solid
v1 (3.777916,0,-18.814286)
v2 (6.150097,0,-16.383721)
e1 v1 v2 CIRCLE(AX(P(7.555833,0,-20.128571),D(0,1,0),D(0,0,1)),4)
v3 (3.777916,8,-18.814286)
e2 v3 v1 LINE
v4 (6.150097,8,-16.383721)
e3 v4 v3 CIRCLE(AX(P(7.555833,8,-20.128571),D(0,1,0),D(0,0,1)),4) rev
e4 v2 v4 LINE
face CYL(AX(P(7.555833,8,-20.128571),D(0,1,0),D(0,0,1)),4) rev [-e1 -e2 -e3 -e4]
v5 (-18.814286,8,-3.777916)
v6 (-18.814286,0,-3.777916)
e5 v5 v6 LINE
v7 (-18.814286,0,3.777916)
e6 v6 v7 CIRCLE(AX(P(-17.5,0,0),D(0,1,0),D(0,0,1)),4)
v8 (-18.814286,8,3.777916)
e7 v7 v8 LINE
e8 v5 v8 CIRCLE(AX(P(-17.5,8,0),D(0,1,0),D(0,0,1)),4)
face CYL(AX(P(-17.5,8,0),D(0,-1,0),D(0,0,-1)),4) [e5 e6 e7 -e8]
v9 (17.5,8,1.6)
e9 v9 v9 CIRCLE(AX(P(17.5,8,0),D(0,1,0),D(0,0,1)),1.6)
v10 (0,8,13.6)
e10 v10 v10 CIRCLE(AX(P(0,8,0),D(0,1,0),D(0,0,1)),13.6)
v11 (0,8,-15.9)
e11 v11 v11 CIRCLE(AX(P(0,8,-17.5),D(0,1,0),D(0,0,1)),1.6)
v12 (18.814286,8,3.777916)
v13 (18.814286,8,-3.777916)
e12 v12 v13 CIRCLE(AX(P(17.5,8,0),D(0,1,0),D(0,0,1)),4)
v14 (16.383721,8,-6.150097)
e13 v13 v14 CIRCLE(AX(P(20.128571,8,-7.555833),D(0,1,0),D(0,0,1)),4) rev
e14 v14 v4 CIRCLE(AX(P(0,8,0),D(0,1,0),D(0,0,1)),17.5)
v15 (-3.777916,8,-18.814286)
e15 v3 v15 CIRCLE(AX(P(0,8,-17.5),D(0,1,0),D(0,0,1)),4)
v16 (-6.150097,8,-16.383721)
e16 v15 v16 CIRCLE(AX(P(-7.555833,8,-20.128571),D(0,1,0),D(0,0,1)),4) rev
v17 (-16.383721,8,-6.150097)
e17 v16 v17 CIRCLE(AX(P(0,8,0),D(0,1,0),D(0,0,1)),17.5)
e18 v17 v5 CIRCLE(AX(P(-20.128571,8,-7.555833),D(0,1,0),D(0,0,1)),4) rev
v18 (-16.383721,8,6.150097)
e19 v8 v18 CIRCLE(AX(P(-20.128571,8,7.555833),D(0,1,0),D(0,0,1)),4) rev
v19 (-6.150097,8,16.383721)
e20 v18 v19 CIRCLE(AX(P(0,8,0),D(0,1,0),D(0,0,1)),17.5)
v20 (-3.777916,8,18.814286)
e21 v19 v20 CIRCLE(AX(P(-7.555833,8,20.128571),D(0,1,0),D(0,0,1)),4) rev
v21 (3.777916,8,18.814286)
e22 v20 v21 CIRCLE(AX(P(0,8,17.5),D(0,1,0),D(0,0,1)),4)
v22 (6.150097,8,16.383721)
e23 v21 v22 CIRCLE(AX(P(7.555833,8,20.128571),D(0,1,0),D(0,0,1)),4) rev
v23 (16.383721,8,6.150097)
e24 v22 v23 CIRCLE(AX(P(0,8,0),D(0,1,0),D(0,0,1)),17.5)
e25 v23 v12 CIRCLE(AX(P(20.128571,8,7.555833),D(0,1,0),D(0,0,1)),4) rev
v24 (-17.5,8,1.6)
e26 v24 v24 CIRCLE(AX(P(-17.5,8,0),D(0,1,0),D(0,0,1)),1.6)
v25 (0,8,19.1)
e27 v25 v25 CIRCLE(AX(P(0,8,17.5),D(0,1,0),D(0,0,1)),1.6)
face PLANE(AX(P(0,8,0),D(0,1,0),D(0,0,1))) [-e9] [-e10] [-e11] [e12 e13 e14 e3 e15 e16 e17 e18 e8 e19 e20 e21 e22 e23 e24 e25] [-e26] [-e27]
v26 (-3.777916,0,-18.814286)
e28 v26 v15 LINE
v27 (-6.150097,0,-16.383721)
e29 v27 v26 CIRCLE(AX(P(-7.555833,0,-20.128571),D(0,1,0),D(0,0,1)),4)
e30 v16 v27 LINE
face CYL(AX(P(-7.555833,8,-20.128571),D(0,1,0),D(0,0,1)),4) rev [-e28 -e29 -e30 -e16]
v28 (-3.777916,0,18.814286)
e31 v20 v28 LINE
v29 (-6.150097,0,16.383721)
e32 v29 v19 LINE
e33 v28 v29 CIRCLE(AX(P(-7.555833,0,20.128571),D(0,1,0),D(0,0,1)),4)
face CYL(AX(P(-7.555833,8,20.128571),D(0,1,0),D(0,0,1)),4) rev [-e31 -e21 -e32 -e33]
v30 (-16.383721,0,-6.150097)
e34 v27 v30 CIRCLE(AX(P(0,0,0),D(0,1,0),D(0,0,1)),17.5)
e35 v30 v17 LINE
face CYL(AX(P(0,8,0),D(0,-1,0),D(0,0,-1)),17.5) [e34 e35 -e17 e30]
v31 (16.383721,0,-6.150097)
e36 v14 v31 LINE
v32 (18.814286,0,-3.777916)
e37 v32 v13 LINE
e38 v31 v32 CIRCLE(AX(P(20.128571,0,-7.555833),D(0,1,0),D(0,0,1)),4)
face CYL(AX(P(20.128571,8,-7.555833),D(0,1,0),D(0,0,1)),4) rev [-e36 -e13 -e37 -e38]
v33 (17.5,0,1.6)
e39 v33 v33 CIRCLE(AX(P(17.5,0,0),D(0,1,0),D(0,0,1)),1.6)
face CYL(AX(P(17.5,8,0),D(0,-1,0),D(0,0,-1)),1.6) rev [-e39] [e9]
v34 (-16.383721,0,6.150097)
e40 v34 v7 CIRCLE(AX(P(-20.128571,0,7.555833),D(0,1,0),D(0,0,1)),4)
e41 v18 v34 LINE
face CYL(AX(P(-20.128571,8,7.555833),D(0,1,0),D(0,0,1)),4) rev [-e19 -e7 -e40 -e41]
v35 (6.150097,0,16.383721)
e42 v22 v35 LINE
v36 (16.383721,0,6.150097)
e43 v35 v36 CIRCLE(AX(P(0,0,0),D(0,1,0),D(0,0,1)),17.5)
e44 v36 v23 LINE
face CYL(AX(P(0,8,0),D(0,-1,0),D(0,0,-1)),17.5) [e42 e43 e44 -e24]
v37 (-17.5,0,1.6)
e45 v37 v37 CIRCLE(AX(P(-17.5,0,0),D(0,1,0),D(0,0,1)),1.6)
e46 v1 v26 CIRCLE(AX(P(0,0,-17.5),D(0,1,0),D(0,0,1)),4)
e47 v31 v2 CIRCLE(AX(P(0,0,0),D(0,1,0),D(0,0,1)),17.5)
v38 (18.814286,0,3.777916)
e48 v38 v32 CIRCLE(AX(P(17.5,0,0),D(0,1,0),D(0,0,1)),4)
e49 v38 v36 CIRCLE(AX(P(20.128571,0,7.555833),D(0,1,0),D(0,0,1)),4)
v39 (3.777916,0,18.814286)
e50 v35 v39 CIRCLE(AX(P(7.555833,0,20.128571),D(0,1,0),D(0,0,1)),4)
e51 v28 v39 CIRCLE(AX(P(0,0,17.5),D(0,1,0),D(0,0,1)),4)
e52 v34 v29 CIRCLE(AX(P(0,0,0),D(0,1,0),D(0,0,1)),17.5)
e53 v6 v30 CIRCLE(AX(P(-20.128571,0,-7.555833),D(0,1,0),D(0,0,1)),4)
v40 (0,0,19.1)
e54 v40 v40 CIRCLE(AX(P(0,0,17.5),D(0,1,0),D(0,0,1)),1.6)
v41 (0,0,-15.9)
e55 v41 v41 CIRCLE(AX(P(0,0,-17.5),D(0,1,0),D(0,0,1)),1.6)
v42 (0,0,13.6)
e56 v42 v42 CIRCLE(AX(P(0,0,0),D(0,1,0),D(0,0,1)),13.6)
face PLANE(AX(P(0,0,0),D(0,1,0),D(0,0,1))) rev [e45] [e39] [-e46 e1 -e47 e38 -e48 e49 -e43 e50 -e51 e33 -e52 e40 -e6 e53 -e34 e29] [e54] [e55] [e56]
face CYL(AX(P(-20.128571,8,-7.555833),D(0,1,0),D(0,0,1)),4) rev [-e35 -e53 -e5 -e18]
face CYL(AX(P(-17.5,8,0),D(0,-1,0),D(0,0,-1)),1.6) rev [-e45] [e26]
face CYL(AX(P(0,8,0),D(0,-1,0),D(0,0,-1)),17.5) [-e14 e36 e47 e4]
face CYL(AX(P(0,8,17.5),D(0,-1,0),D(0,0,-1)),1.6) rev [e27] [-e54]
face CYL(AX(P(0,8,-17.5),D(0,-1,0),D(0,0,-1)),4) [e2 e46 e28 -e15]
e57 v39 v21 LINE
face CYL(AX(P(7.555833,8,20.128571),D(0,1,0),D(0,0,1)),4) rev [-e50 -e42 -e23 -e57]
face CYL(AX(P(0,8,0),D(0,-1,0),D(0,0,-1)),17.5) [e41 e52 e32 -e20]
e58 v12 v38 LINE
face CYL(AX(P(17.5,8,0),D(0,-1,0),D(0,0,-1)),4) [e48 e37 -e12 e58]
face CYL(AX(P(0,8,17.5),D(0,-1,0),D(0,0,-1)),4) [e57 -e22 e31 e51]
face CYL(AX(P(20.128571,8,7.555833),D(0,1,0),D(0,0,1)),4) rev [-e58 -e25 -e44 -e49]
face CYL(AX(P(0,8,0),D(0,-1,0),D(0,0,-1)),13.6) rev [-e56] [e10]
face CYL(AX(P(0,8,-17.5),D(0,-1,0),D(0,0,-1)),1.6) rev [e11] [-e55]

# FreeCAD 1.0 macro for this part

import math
import FreeCAD as App
import Part
import Sketcher


def edges_at(feature, points):
    """Names of the edges that pass closest to the given points."""
    edges = feature.Shape.Edges
    near = lambda p: min(range(len(edges)), key=lambda i: edges[i].distToShape(Part.Vertex(*p))[0])
    return sorted({f"Edge{near(p) + 1}" for p in points})

doc = App.newDocument("Part")
params = doc.addObject("Spreadsheet::Sheet", "Params")
for row, (alias, value) in enumerate([
    ("sketch1_radius", "4 mm"),
    ("sketch1_diameter", "3.2 mm"),
    ("sketch1_diameter2", "27.2 mm"),
    ("sketch1_radius2", "17.5 mm"),
    ("pad1_length", "8 mm"),
    ("fillet_radius", "4 mm"),
], start=1):
    params.set(f"A{row}", alias)
    params.set(f"B{row}", "=" + value)
    params.setAlias(f"B{row}", alias)

body = doc.addObject("PartDesign::Body", "Body")

# Sketch on XZ plane
sketch1 = doc.addObject("Sketcher::SketchObject", "Sketch")
body.addObject(sketch1)
sketch1.AttachmentSupport = (doc.XZ_Plane, [""])
sketch1.MapMode = "FlatFace"
sketch1.addGeometry(Part.ArcOfCircle(Part.Circle(App.Vector(17.5, 0, 0), App.Vector(0, 0, 1), 4), math.radians(-97), math.radians(97)), False)
sketch1.addGeometry(Part.ArcOfCircle(Part.Circle(App.Vector(0, 0, 0), App.Vector(0, 0, 1), 17.5), math.radians(-77), math.radians(-13)), False)
sketch1.addGeometry(Part.ArcOfCircle(Part.Circle(App.Vector(0, -17.5, 0), App.Vector(0, 0, 1), 4), math.radians(173), math.radians(367)), False)
sketch1.addGeometry(Part.ArcOfCircle(Part.Circle(App.Vector(0, 0, 0), App.Vector(0, 0, 1), 17.5), math.radians(-167), math.radians(-103)), False)
sketch1.addGeometry(Part.ArcOfCircle(Part.Circle(App.Vector(-17.5, 0, 0), App.Vector(0, 0, 1), 4), math.radians(83), math.radians(277)), False)
sketch1.addGeometry(Part.ArcOfCircle(Part.Circle(App.Vector(0, 0, 0), App.Vector(0, 0, 1), 17.5), math.radians(103), math.radians(167)), False)
sketch1.addGeometry(Part.ArcOfCircle(Part.Circle(App.Vector(0, 17.5, 0), App.Vector(0, 0, 1), 4), math.radians(-7), math.radians(187)), False)
sketch1.addGeometry(Part.ArcOfCircle(Part.Circle(App.Vector(0, 0, 0), App.Vector(0, 0, 1), 17.5), math.radians(13), math.radians(77)), False)
sketch1.addGeometry(Part.Circle(App.Vector(0, 17.5, 0), App.Vector(0, 0, 1), 1.6), False)
sketch1.addGeometry(Part.Circle(App.Vector(-17.5, 0, 0), App.Vector(0, 0, 1), 1.6), False)
sketch1.addGeometry(Part.Circle(App.Vector(0, 0, 0), App.Vector(0, 0, 1), 13.6), False)
sketch1.addGeometry(Part.Circle(App.Vector(17.5, 0, 0), App.Vector(0, 0, 1), 1.6), False)
sketch1.addGeometry(Part.Circle(App.Vector(0, -17.5, 0), App.Vector(0, 0, 1), 1.6), False)
sketch1.addConstraint(Sketcher.Constraint("Coincident", 0, 1, 1, 2))
sketch1.addConstraint(Sketcher.Constraint("Coincident", 1, 1, 2, 2))
sketch1.addConstraint(Sketcher.Constraint("Coincident", 2, 1, 3, 2))
sketch1.addConstraint(Sketcher.Constraint("Coincident", 3, 1, 4, 2))
sketch1.addConstraint(Sketcher.Constraint("Coincident", 4, 1, 5, 2))
sketch1.addConstraint(Sketcher.Constraint("Coincident", 5, 1, 6, 2))
sketch1.addConstraint(Sketcher.Constraint("Coincident", 6, 1, 7, 2))
sketch1.addConstraint(Sketcher.Constraint("Coincident", 7, 1, 0, 2))
sketch1.addConstraint(Sketcher.Constraint("Coincident", 1, 3, -1, 1))
sketch1.addConstraint(Sketcher.Constraint("Coincident", 3, 3, -1, 1))
sketch1.addConstraint(Sketcher.Constraint("Coincident", 5, 3, -1, 1))
sketch1.addConstraint(Sketcher.Constraint("Coincident", 7, 3, -1, 1))
sketch1.addConstraint(Sketcher.Constraint("Coincident", 10, 3, -1, 1))
sketch1.addConstraint(Sketcher.Constraint("Coincident", 8, 3, 6, 3))
sketch1.addConstraint(Sketcher.Constraint("Coincident", 9, 3, 4, 3))
sketch1.addConstraint(Sketcher.Constraint("Coincident", 11, 3, 0, 3))
sketch1.addConstraint(Sketcher.Constraint("Coincident", 12, 3, 2, 3))
sketch1.addConstraint(Sketcher.Constraint("Equal", 0, 2))
sketch1.addConstraint(Sketcher.Constraint("Equal", 1, 3))
sketch1.addConstraint(Sketcher.Constraint("Equal", 2, 4))
sketch1.addConstraint(Sketcher.Constraint("Equal", 3, 5))
sketch1.addConstraint(Sketcher.Constraint("Equal", 4, 6))
sketch1.addConstraint(Sketcher.Constraint("Equal", 5, 7))
sketch1.addConstraint(Sketcher.Constraint("Equal", 8, 9))
sketch1.addConstraint(Sketcher.Constraint("Equal", 9, 11))
sketch1.addConstraint(Sketcher.Constraint("Equal", 11, 12))
sketch1.addConstraint(Sketcher.Constraint("Symmetric", 0, 3, 4, 3, -1, 1))
sketch1.addConstraint(Sketcher.Constraint("Symmetric", 2, 3, 6, 3, -1, 1))
sketch1.addConstraint(Sketcher.Constraint("PointOnObject", 0, 3, -1))
sketch1.addConstraint(Sketcher.Constraint("PointOnObject", 2, 3, -2))
sketch1.addConstraint(Sketcher.Constraint("Radius", 0, 4.0))
sketch1.addConstraint(Sketcher.Constraint("Diameter", 8, 3.2))
sketch1.addConstraint(Sketcher.Constraint("Diameter", 10, 27.2))
sketch1.addConstraint(Sketcher.Constraint("Radius", 1, 17.5))
sketch1.addConstraint(Sketcher.Constraint("DistanceX", 4, 3, 0, 3, 35.0))
sketch1.addConstraint(Sketcher.Constraint("DistanceY", 2, 3, -1, 1, 17.5))
sketch1.setExpression("Constraints[30]", "Params.sketch1_radius")
sketch1.setExpression("Constraints[31]", "Params.sketch1_diameter")
sketch1.setExpression("Constraints[32]", "Params.sketch1_diameter2")
sketch1.setExpression("Constraints[33]", "Params.sketch1_radius2")
pad1 = doc.addObject("PartDesign::Pad", "Pad")
body.addObject(pad1)
pad1.Profile = sketch1
pad1.setExpression("Length", "Params.pad1_length")
pad1.Reversed = True
doc.recompute()

fillet = doc.addObject("PartDesign::Fillet", "Fillet")
body.addObject(fillet)
fillet.Base = (pad1, edges_at(pad1, [
    (17.043, 4, 3.974),
    (3.974, 4, 17.043),
    (-3.974, 4, 17.043),
    (-17.043, 4, 3.974),
    (-17.043, 4, -3.974),
    (-3.974, 4, -17.043),
    (3.974, 4, -17.043),
    (17.043, 4, -3.974),
]))
fillet.setExpression("Radius", "Params.fillet_radius")

doc.recompute()
